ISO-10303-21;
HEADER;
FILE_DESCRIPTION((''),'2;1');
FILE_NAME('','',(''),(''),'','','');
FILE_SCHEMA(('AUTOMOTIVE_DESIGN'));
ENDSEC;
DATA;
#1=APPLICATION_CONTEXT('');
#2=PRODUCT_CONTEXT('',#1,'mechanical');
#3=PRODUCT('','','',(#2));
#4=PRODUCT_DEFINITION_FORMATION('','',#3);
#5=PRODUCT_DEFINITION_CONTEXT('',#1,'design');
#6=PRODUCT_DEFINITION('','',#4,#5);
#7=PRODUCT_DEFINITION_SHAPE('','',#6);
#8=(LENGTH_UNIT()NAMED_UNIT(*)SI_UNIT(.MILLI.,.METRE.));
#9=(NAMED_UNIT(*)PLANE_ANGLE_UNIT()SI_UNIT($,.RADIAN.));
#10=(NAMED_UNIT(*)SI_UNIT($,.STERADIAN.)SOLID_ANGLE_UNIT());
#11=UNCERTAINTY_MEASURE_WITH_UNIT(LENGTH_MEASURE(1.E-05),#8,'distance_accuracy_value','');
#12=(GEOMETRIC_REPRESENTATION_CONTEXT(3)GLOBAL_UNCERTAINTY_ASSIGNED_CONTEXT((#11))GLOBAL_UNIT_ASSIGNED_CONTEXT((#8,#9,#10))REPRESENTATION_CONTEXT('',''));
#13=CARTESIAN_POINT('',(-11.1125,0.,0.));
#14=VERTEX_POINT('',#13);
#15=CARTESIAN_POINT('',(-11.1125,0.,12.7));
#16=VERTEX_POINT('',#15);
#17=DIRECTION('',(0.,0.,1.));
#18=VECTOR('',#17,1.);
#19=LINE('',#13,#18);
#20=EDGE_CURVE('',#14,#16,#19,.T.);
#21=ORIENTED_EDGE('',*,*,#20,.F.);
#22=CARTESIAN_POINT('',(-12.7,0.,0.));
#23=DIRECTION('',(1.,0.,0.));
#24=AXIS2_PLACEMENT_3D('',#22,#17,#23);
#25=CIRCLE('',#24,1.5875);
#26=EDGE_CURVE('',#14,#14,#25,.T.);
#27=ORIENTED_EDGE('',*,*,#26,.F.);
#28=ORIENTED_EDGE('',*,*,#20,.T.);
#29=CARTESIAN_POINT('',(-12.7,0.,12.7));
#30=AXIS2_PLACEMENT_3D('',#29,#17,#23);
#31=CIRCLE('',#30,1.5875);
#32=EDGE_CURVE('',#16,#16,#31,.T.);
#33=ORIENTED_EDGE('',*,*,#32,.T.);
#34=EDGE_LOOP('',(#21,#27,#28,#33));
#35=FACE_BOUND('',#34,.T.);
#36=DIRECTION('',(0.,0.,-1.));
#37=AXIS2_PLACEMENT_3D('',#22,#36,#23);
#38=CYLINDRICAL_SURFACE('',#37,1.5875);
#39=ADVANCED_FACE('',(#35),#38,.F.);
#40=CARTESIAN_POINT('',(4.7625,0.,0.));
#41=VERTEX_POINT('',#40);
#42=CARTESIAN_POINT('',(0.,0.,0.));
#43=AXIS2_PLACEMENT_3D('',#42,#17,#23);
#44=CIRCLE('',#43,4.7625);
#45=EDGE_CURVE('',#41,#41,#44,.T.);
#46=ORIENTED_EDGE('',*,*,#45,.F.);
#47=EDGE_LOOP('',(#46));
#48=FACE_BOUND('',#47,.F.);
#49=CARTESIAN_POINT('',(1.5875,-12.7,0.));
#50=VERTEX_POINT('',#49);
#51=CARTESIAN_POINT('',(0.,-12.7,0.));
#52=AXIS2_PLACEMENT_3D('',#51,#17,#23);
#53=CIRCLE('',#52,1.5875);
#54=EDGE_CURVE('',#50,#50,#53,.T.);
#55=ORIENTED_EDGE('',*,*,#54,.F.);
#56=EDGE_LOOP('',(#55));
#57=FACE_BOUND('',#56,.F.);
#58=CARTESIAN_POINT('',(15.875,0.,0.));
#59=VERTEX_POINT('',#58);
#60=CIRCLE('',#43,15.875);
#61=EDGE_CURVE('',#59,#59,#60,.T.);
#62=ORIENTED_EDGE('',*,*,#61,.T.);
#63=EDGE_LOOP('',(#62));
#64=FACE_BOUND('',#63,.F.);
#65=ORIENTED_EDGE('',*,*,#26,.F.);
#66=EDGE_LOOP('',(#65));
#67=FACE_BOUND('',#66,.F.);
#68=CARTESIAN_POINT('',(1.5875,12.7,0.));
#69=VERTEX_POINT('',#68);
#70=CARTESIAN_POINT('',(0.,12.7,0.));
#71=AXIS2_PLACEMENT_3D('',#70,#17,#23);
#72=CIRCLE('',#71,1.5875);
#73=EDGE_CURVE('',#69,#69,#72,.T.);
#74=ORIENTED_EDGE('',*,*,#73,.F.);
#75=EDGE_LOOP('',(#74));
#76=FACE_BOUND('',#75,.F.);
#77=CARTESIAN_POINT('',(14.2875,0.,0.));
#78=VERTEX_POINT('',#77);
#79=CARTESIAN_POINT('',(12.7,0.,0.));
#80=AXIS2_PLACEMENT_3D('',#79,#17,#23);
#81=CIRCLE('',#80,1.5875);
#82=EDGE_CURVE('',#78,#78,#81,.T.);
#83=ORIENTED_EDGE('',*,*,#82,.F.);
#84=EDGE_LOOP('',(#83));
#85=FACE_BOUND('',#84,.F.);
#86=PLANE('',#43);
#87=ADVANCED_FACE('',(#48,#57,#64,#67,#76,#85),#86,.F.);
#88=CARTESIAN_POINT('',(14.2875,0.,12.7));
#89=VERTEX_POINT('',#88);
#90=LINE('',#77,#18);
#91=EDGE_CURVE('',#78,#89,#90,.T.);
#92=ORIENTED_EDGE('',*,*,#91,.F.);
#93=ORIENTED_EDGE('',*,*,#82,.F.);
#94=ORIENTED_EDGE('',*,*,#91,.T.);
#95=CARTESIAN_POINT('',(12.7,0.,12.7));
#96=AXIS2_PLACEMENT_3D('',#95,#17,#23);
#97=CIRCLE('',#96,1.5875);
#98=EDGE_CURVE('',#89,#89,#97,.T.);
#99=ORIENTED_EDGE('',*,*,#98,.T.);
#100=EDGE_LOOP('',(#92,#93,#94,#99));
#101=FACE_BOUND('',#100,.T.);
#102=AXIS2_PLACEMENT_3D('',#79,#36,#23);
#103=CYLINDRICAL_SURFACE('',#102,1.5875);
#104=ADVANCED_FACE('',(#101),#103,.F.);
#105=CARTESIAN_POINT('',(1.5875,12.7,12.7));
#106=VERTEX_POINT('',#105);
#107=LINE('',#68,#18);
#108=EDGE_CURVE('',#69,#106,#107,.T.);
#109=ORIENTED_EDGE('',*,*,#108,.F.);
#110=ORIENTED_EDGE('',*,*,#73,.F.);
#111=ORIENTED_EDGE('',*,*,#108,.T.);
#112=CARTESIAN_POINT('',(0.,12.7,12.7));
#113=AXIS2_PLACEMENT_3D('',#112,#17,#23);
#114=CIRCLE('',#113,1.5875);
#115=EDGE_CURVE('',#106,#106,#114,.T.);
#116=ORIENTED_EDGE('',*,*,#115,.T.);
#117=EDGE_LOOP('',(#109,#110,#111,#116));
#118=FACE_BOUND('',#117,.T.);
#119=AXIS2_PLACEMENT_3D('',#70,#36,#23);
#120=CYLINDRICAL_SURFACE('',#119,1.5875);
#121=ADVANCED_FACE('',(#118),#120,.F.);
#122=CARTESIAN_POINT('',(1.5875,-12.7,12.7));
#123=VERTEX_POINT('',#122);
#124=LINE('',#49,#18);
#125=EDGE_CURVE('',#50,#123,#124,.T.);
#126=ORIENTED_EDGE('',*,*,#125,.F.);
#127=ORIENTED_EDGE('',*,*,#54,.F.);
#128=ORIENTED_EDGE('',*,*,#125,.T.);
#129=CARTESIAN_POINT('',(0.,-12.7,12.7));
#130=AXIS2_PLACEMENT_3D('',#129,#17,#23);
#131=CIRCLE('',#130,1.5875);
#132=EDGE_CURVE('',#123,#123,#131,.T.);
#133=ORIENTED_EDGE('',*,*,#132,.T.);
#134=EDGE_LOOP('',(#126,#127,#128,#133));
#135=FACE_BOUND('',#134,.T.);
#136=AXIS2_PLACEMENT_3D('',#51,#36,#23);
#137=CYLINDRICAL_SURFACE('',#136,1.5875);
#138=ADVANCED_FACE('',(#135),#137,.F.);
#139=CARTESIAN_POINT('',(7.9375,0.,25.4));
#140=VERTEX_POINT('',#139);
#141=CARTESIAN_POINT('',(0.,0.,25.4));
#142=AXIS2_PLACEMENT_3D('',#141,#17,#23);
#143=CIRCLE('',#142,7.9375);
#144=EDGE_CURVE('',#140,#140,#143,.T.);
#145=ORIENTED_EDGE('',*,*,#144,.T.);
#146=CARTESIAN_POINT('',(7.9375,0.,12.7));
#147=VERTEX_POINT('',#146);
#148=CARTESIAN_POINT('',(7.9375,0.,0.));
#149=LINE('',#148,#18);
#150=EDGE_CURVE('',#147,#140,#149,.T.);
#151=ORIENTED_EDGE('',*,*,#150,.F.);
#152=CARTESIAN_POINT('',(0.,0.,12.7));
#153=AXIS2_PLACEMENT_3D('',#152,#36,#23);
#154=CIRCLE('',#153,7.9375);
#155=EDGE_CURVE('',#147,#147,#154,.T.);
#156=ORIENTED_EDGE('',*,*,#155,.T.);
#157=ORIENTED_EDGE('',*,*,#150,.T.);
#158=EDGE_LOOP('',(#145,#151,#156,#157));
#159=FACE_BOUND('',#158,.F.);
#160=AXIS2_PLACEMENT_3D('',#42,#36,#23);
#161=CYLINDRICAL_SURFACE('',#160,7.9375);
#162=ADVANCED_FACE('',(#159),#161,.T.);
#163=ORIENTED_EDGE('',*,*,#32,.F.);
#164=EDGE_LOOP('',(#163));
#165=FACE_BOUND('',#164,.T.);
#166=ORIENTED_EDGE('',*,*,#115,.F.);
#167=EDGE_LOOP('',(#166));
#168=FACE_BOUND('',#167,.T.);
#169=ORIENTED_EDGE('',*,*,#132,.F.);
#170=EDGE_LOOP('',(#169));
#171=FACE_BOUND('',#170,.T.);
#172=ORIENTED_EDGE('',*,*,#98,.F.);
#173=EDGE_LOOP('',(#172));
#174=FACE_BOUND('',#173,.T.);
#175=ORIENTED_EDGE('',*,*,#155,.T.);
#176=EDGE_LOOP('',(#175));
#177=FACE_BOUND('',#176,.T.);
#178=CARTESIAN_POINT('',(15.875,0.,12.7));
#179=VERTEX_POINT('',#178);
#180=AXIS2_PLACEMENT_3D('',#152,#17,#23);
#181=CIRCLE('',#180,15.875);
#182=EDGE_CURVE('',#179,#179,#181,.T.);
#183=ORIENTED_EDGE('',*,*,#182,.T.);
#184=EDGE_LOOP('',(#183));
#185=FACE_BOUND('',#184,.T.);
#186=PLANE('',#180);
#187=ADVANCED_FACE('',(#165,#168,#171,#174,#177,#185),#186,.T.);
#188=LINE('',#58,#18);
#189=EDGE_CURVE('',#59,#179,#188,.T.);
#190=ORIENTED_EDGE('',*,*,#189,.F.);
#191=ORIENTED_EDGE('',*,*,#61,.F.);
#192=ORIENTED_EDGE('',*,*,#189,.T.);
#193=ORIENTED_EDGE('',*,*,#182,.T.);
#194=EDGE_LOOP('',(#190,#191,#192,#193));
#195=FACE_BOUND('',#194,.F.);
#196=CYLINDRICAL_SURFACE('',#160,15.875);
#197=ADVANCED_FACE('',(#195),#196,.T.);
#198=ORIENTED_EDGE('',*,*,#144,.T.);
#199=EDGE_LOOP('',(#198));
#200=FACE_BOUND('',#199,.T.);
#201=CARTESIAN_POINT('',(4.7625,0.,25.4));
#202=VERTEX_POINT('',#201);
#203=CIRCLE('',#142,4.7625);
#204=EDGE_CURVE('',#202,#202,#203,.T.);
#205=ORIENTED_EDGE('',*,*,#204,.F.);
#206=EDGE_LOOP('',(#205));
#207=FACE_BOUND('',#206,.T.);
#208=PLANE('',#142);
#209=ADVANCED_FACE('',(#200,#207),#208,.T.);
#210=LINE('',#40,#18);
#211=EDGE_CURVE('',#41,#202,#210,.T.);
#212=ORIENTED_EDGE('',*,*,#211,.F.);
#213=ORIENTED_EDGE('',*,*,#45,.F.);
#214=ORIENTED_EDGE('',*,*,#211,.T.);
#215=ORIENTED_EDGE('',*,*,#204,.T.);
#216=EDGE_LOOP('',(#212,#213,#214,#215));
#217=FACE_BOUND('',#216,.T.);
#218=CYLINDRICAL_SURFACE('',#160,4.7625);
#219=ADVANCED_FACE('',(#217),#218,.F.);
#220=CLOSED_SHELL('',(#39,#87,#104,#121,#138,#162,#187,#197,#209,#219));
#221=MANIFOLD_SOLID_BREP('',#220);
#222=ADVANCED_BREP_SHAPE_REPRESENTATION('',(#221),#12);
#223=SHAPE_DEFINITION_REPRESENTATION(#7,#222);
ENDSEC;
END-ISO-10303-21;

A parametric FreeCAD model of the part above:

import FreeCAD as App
import Part
import Sketcher

V = App.Vector
Q = App.Units.Quantity

doc = App.newDocument("Part")
body = doc.addObject("PartDesign::Body", "Body")

sketch1 = doc.addObject("Sketcher::SketchObject", "Sketch")
body.addObject(sketch1)
sketch1.AttachmentSupport = (doc.XY_Plane, [""])
sketch1.MapMode = "FlatFace"
sketch1.addGeometry(Part.Circle(V(0, 0, 0), V(0, 0, 1), 16), False)
sketch1.addConstraint(Sketcher.Constraint("Coincident", 0, 3, -1, 1))
sketch1.addConstraint(Sketcher.Constraint("Diameter", 0, Q("1.25 in")))
pad1 = doc.addObject("PartDesign::Pad", "Pad")
body.addObject(pad1)
pad1.Profile = sketch1
pad1.Length = Q("0.5 in")

sketch2 = doc.addObject("Sketcher::SketchObject", "Sketch001")
body.addObject(sketch2)
sketch2.AttachmentSupport = (doc.XY_Plane, [""])
sketch2.MapMode = "FlatFace"
sketch2.addGeometry(Part.Circle(V(0, 0, 0), V(0, 0, 1), 8), False)
sketch2.addConstraint(Sketcher.Constraint("Coincident", 0, 3, -1, 1))
sketch2.addConstraint(Sketcher.Constraint("Diameter", 0, Q("0.625 in")))
pad2 = doc.addObject("PartDesign::Pad", "Pad001")
body.addObject(pad2)
pad2.Profile = sketch2
pad2.Length = Q("1 in")

sketch3 = doc.addObject("Sketcher::SketchObject", "Sketch002")
body.addObject(sketch3)
sketch3.AttachmentSupport = (doc.XY_Plane, [""])
sketch3.MapMode = "FlatFace"
sketch3.addGeometry(Part.Circle(V(0, 0, 0), V(0, 0, 1), 4.8), False)
sketch3.addConstraint(Sketcher.Constraint("Coincident", 0, 3, -1, 1))
sketch3.addConstraint(Sketcher.Constraint("Diameter", 0, Q("0.375 in")))
pocket1 = doc.addObject("PartDesign::Pocket", "Pocket")
body.addObject(pocket1)
pocket1.Profile = sketch3
pocket1.Length = Q("1 in")
pocket1.Reversed = True

sketch4 = doc.addObject("Sketcher::SketchObject", "Sketch003")
body.addObject(sketch4)
sketch4.AttachmentSupport = (doc.XY_Plane, [""])
sketch4.MapMode = "FlatFace"
sketch4.addGeometry(Part.Circle(V(0, 12.7, 0), V(0, 0, 1), 1.6), False)
sketch4.addGeometry(Part.Circle(V(12.7, 0, 0), V(0, 0, 1), 1.6), False)
sketch4.addGeometry(Part.Circle(V(-12.7, 0, 0), V(0, 0, 1), 1.6), False)
sketch4.addGeometry(Part.Circle(V(0, -12.7, 0), V(0, 0, 1), 1.6), False)
sketch4.addConstraint(Sketcher.Constraint("Equal", 0, 1))
sketch4.addConstraint(Sketcher.Constraint("Equal", 1, 2))
sketch4.addConstraint(Sketcher.Constraint("Equal", 2, 3))
sketch4.addConstraint(Sketcher.Constraint("Symmetric", 1, 3, 2, 3, -1, 1))
sketch4.addConstraint(Sketcher.Constraint("Symmetric", 0, 3, 3, 3, -1, 1))
sketch4.addConstraint(Sketcher.Constraint("PointOnObject", 0, 3, -2))
sketch4.addConstraint(Sketcher.Constraint("PointOnObject", 1, 3, -1))
sketch4.addConstraint(Sketcher.Constraint("Diameter", 0, Q("0.125 in")))
sketch4.addConstraint(Sketcher.Constraint("DistanceX", 2, 3, 1, 3, Q("1 in")))
sketch4.addConstraint(Sketcher.Constraint("DistanceY", 3, 3, 0, 3, Q("1 in")))
pocket2 = doc.addObject("PartDesign::Pocket", "Pocket001")
body.addObject(pocket2)
pocket2.Profile = sketch4
pocket2.Length = Q("0.5 in")
pocket2.Reversed = True

doc.recompute()
